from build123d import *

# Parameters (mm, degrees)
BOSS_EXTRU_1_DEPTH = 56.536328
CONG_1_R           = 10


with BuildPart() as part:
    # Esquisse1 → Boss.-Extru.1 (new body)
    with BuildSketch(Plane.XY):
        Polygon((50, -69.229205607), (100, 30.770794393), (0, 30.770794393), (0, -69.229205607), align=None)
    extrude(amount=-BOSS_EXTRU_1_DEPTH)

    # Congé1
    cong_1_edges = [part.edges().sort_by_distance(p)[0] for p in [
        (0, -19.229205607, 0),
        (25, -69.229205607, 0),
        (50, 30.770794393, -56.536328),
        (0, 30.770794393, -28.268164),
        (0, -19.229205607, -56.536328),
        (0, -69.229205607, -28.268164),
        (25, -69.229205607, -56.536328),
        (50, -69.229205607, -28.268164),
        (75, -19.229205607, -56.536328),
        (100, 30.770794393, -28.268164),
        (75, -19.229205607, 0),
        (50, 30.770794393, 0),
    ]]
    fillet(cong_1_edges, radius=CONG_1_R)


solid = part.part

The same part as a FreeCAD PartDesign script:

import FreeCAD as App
import Part
import Sketcher
from FreeCAD import Vector


def add_polygon(sketch, points):
    """Adds a closed chain of lines whose ends are joined by coincident constraints."""
    first, n = sketch.GeometryCount, len(points)
    for a, b in zip(points, points[1:] + points[:1]):
        sketch.addGeometry(Part.LineSegment(App.Vector(*a, 0), App.Vector(*b, 0)), False)
    for i in range(n):
        sketch.addConstraint(Sketcher.Constraint("Coincident", first + i, 2, first + (i + 1) % n, 1))

doc = App.newDocument("Part")
body = doc.addObject("PartDesign::Body", "Body")

sketch1 = body.newObject("Sketcher::SketchObject", "Sketch")
sketch1.AttachmentSupport = (doc.getObject("XY_Plane"), [""])
sketch1.MapMode = "FlatFace"
add_polygon(sketch1, [(50, -69.229206), (100, 30.770794), (0, 30.770794), (0, -69.229206)])
sketch1.addConstraint([
    Sketcher.Constraint("Horizontal", 1),
    Sketcher.Constraint("Vertical", 2),
    Sketcher.Constraint("Horizontal", 3),
    Sketcher.Constraint("PointOnObject", 1, 2, -2),
    Sketcher.Constraint("Equal", 1, 2),
    Sketcher.Constraint("DistanceX", 1, 2, 1, 1, 100.0),
    Sketcher.Constraint("DistanceX", 3, 1, 3, 2, 50.0),
    Sketcher.Constraint("DistanceY", -1, 1, 0, 2, 30.770794),
])
pad1 = body.newObject("PartDesign::Pad", "Pad")
pad1.Profile = sketch1
pad1.Length = 56.536328
pad1.Reversed = True
doc.recompute()

fillet = body.newObject("PartDesign::Fillet", "Fillet")
fillet.Base = (pad1, ["Edge1"])
fillet.UseAllEdges = True
fillet.Radius = 10

doc.recompute()
